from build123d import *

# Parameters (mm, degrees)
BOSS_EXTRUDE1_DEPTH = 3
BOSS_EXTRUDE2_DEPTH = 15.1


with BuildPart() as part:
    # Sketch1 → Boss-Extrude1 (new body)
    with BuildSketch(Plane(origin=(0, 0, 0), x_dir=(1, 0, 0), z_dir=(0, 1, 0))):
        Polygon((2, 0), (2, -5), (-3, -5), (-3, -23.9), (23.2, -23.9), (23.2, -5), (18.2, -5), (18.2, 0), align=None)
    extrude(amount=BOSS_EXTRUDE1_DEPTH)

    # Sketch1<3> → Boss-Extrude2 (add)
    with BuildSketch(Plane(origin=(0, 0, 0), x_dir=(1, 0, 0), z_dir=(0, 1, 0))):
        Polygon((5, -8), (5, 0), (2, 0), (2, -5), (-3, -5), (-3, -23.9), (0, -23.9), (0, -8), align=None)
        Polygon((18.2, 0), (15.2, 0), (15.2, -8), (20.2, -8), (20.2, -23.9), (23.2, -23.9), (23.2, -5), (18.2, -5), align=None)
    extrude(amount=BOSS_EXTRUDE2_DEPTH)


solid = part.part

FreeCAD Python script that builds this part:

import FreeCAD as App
import Part
import Sketcher

V = App.Vector

doc = App.newDocument("Part")
body = doc.addObject("PartDesign::Body", "Body")

# Sketch on XZ plane
sketch1 = body.newObject("Sketcher::SketchObject", "Sketch")
sketch1.AttachmentSupport = (doc.getObject("XZ_Plane"), [""])
sketch1.MapMode = "FlatFace"
sketch1.addGeometry(Part.LineSegment(V(2, 0, 0), V(2, 5, 0)), False)
sketch1.addGeometry(Part.LineSegment(V(2, 5, 0), V(-3, 5, 0)), False)
sketch1.addGeometry(Part.LineSegment(V(-3, 5, 0), V(-3, 23.9, 0)), False)
sketch1.addGeometry(Part.LineSegment(V(-3, 23.9, 0), V(23.2, 23.9, 0)), False)
sketch1.addGeometry(Part.LineSegment(V(23.2, 23.9, 0), V(23.2, 5, 0)), False)
sketch1.addGeometry(Part.LineSegment(V(23.2, 5, 0), V(18.2, 5, 0)), False)
sketch1.addGeometry(Part.LineSegment(V(18.2, 5, 0), V(18.2, 0, 0)), False)
sketch1.addGeometry(Part.LineSegment(V(18.2, 0, 0), V(2, 0, 0)), False)
sketch1.addConstraint(Sketcher.Constraint("Coincident", 0, 2, 1, 1))
sketch1.addConstraint(Sketcher.Constraint("Coincident", 1, 2, 2, 1))
sketch1.addConstraint(Sketcher.Constraint("Coincident", 2, 2, 3, 1))
sketch1.addConstraint(Sketcher.Constraint("Coincident", 3, 2, 4, 1))
sketch1.addConstraint(Sketcher.Constraint("Coincident", 4, 2, 5, 1))
sketch1.addConstraint(Sketcher.Constraint("Coincident", 5, 2, 6, 1))
sketch1.addConstraint(Sketcher.Constraint("Coincident", 6, 2, 7, 1))
sketch1.addConstraint(Sketcher.Constraint("Coincident", 7, 2, 0, 1))
sketch1.addConstraint(Sketcher.Constraint("Vertical", 0))
sketch1.addConstraint(Sketcher.Constraint("Horizontal", 1))
sketch1.addConstraint(Sketcher.Constraint("Vertical", 2))
sketch1.addConstraint(Sketcher.Constraint("Horizontal", 3))
sketch1.addConstraint(Sketcher.Constraint("Vertical", 4))
sketch1.addConstraint(Sketcher.Constraint("Horizontal", 5))
sketch1.addConstraint(Sketcher.Constraint("Vertical", 6))
sketch1.addConstraint(Sketcher.Constraint("Horizontal", 7))
sketch1.addConstraint(Sketcher.Constraint("PointOnObject", 6, 2, -1))
sketch1.addConstraint(Sketcher.Constraint("Horizontal", 1, 2, 4, 2))
sketch1.addConstraint(Sketcher.Constraint("Equal", 1, 5))
sketch1.addConstraint(Sketcher.Constraint("Equal", 5, 0))
sketch1.addConstraint(Sketcher.Constraint("DistanceX", 1, 2, 1, 1, 5.0))
sketch1.addConstraint(Sketcher.Constraint("DistanceX", 3, 1, 3, 2, 26.2))
sketch1.addConstraint(Sketcher.Constraint("DistanceY", 2, 1, 2, 2, 18.9))
sketch1.addConstraint(Sketcher.Constraint("DistanceX", -1, 1, 0, 2, 2.0))
pad1 = body.newObject("PartDesign::Pad", "Pad")
pad1.Profile = sketch1
pad1.Length = 3
pad1.Reversed = True

# Sketch on XZ plane
sketch2 = body.newObject("Sketcher::SketchObject", "Sketch001")
sketch2.AttachmentSupport = (doc.getObject("XZ_Plane"), [""])
sketch2.MapMode = "FlatFace"
sketch2.addGeometry(Part.LineSegment(V(5, 8, 0), V(5, 0, 0)), False)
sketch2.addGeometry(Part.LineSegment(V(5, 0, 0), V(2, 0, 0)), False)
sketch2.addGeometry(Part.LineSegment(V(2, 0, 0), V(2, 5, 0)), False)
sketch2.addGeometry(Part.LineSegment(V(2, 5, 0), V(-3, 5, 0)), False)
sketch2.addGeometry(Part.LineSegment(V(-3, 5, 0), V(-3, 23.9, 0)), False)
sketch2.addGeometry(Part.LineSegment(V(-3, 23.9, 0), V(0, 23.9, 0)), False)
sketch2.addGeometry(Part.LineSegment(V(0, 23.9, 0), V(0, 8, 0)), False)
sketch2.addGeometry(Part.LineSegment(V(0, 8, 0), V(5, 8, 0)), False)
sketch2.addGeometry(Part.LineSegment(V(18.2, 0, 0), V(15.2, 0, 0)), False)
sketch2.addGeometry(Part.LineSegment(V(15.2, 0, 0), V(15.2, 8, 0)), False)
sketch2.addGeometry(Part.LineSegment(V(15.2, 8, 0), V(20.2, 8, 0)), False)
sketch2.addGeometry(Part.LineSegment(V(20.2, 8, 0), V(20.2, 23.9, 0)), False)
sketch2.addGeometry(Part.LineSegment(V(20.2, 23.9, 0), V(23.2, 23.9, 0)), False)
sketch2.addGeometry(Part.LineSegment(V(23.2, 23.9, 0), V(23.2, 5, 0)), False)
sketch2.addGeometry(Part.LineSegment(V(23.2, 5, 0), V(18.2, 5, 0)), False)
sketch2.addGeometry(Part.LineSegment(V(18.2, 5, 0), V(18.2, 0, 0)), False)
sketch2.addConstraint(Sketcher.Constraint("Coincident", 0, 2, 1, 1))
sketch2.addConstraint(Sketcher.Constraint("Coincident", 1, 2, 2, 1))
sketch2.addConstraint(Sketcher.Constraint("Coincident", 2, 2, 3, 1))
sketch2.addConstraint(Sketcher.Constraint("Coincident", 3, 2, 4, 1))
sketch2.addConstraint(Sketcher.Constraint("Coincident", 4, 2, 5, 1))
sketch2.addConstraint(Sketcher.Constraint("Coincident", 5, 2, 6, 1))
sketch2.addConstraint(Sketcher.Constraint("Coincident", 6, 2, 7, 1))
sketch2.addConstraint(Sketcher.Constraint("Coincident", 7, 2, 0, 1))
sketch2.addConstraint(Sketcher.Constraint("Coincident", 8, 2, 9, 1))
sketch2.addConstraint(Sketcher.Constraint("Coincident", 9, 2, 10, 1))
sketch2.addConstraint(Sketcher.Constraint("Coincident", 10, 2, 11, 1))
sketch2.addConstraint(Sketcher.Constraint("Coincident", 11, 2, 12, 1))
sketch2.addConstraint(Sketcher.Constraint("Coincident", 12, 2, 13, 1))
sketch2.addConstraint(Sketcher.Constraint("Coincident", 13, 2, 14, 1))
sketch2.addConstraint(Sketcher.Constraint("Coincident", 14, 2, 15, 1))
sketch2.addConstraint(Sketcher.Constraint("Coincident", 15, 2, 8, 1))
sketch2.addConstraint(Sketcher.Constraint("Vertical", 0))
sketch2.addConstraint(Sketcher.Constraint("Horizontal", 1))
sketch2.addConstraint(Sketcher.Constraint("Vertical", 2))
sketch2.addConstraint(Sketcher.Constraint("Horizontal", 3))
sketch2.addConstraint(Sketcher.Constraint("Vertical", 4))
sketch2.addConstraint(Sketcher.Constraint("Horizontal", 5))
sketch2.addConstraint(Sketcher.Constraint("Vertical", 6))
sketch2.addConstraint(Sketcher.Constraint("Horizontal", 7))
sketch2.addConstraint(Sketcher.Constraint("Horizontal", 8))
sketch2.addConstraint(Sketcher.Constraint("Vertical", 9))
sketch2.addConstraint(Sketcher.Constraint("Horizontal", 10))
sketch2.addConstraint(Sketcher.Constraint("Vertical", 11))
sketch2.addConstraint(Sketcher.Constraint("Horizontal", 12))
sketch2.addConstraint(Sketcher.Constraint("Vertical", 13))
sketch2.addConstraint(Sketcher.Constraint("Horizontal", 14))
sketch2.addConstraint(Sketcher.Constraint("Vertical", 15))
sketch2.addConstraint(Sketcher.Constraint("PointOnObject", 0, 2, -1))
sketch2.addConstraint(Sketcher.Constraint("PointOnObject", 5, 2, -2))
sketch2.addConstraint(Sketcher.Constraint("PointOnObject", 8, 2, -1))
sketch2.addConstraint(Sketcher.Constraint("Horizontal", 7, 2, 9, 2))
sketch2.addConstraint(Sketcher.Constraint("Horizontal", 5, 2, 11, 2))
sketch2.addConstraint(Sketcher.Constraint("Horizontal", 3, 2, 13, 2))
sketch2.addConstraint(Sketcher.Constraint("Equal", 1, 5))
sketch2.addConstraint(Sketcher.Constraint("Equal", 5, 8))
sketch2.addConstraint(Sketcher.Constraint("Equal", 7, 10))
sketch2.addConstraint(Sketcher.Constraint("Equal", 8, 12))
sketch2.addConstraint(Sketcher.Constraint("Equal", 14, 2))
sketch2.addConstraint(Sketcher.Constraint("DistanceX", 1, 2, 1, 1, 3.0))
sketch2.addConstraint(Sketcher.Constraint("DistanceX", 3, 2, 3, 1, 5.0))
sketch2.addConstraint(Sketcher.Constraint("DistanceY", 0, 2, 0, 1, 8.0))
sketch2.addConstraint(Sketcher.Constraint("DistanceY", 4, 1, 4, 2, 18.9))
sketch2.addConstraint(Sketcher.Constraint("DistanceX", -1, 1, 8, 2, 15.2))
pad2 = body.newObject("PartDesign::Pad", "Pad001")
pad2.Profile = sketch2
pad2.Length = 15.1
pad2.Reversed = True

doc.recompute()
